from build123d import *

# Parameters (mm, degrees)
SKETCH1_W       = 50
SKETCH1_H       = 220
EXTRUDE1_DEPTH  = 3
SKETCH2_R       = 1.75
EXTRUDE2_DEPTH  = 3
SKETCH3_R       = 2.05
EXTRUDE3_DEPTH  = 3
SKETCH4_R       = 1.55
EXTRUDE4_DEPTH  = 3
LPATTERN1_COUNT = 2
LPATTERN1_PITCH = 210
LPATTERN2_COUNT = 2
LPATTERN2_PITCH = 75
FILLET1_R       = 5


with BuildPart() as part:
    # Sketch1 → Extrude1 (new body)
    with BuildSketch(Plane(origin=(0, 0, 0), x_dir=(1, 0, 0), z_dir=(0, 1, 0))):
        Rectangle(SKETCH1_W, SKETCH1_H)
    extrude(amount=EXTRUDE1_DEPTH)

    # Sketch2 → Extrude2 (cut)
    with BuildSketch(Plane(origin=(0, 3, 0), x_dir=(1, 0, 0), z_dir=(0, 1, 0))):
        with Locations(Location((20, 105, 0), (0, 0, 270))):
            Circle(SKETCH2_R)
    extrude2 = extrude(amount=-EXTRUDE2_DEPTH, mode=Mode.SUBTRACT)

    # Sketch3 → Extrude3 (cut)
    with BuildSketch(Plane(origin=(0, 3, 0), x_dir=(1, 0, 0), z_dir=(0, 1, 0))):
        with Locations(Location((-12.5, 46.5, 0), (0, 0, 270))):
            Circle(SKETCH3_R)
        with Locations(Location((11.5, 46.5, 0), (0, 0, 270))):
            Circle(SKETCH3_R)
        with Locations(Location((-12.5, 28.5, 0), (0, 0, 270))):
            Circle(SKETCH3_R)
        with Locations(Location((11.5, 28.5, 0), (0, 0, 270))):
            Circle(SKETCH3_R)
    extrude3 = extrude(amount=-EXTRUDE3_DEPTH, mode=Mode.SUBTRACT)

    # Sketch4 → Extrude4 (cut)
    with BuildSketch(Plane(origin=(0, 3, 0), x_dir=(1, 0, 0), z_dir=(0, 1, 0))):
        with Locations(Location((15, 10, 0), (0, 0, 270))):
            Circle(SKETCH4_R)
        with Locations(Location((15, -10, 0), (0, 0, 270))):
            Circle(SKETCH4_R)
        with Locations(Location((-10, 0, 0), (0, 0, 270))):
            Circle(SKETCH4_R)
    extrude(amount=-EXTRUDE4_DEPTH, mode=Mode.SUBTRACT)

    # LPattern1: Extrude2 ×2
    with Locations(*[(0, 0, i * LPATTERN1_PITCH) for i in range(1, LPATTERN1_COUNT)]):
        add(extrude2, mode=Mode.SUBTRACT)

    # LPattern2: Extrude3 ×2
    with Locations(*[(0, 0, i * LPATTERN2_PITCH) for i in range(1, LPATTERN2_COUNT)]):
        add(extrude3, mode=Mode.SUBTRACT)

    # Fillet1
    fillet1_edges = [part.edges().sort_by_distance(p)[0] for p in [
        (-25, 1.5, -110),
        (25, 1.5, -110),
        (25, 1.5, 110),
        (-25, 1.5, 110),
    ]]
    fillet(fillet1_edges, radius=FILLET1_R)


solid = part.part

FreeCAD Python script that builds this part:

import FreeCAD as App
import Part
import Sketcher

V = App.Vector
Q = App.Units.Quantity


def edges_at(feature, points):
    """Names of the edges that pass closest to the given points."""
    edges = feature.Shape.Edges
    near = lambda p: min(range(len(edges)), key=lambda i: edges[i].distToShape(Part.Vertex(*p))[0])
    return sorted({f"Edge{near(p) + 1}" for p in points})


def add_polygon(sketch, points):
    """Adds a closed chain of lines whose ends are joined by coincident constraints."""
    first, n = sketch.GeometryCount, len(points)
    for a, b in zip(points, points[1:] + points[:1]):
        sketch.addGeometry(Part.LineSegment(App.Vector(*a, 0), App.Vector(*b, 0)), False)
    for i in range(n):
        sketch.addConstraint(Sketcher.Constraint("Coincident", first + i, 2, first + (i + 1) % n, 1))

doc = App.newDocument("Part")
params = doc.addObject("Spreadsheet::Sheet", "Params")
for row, (alias, value) in enumerate([
    ("sketch1_width", "50 mm"),
    ("sketch1_height", "220 mm"),
    ("pad1_length", "3 mm"),
    ("sketch2_diameter", "3.5 mm"),
    ("pocket1_length", "3 mm"),
    ("sketch3_diameter", "4.1 mm"),
    ("pocket2_length", "3 mm"),
    ("sketch4_diameter", "3.1 mm"),
    ("pocket3_length", "3 mm"),
    ("linearpattern_pitch", "210 mm"),
    ("linearpattern2_pitch", "75 mm"),
    ("fillet_radius", "5 mm"),
], start=1):
    params.set(f"A{row}", alias)
    params.set(f"B{row}", "=" + value)
    params.setAlias(f"B{row}", alias)

body = doc.addObject("PartDesign::Body", "Body")

# Sketch on XZ plane
sketch1 = body.newObject("Sketcher::SketchObject", "Sketch")
sketch1.AttachmentSupport = (doc.getObject("XZ_Plane"), [""])
sketch1.MapMode = "FlatFace"
add_polygon(sketch1, [(-25, -110), (-25, 110), (25, 110), (25, -110)])  # lines 0-3
sketch1.addConstraint(Sketcher.Constraint("Vertical", 0))
sketch1.addConstraint(Sketcher.Constraint("Horizontal", 1))
sketch1.addConstraint(Sketcher.Constraint("Vertical", 2))
sketch1.addConstraint(Sketcher.Constraint("Horizontal", 3))
sketch1.addConstraint(Sketcher.Constraint("Symmetric", 0, 2, 2, 2, -1, 1))
sketch1.addConstraint(Sketcher.Constraint("DistanceX", 1, 1, 1, 2, Q("50 mm")))
sketch1.addConstraint(Sketcher.Constraint("DistanceY", 0, 1, 0, 2, Q("220 mm")))
sketch1.setExpression("Constraints[9]", "Params.sketch1_width")
sketch1.setExpression("Constraints[10]", "Params.sketch1_height")
pad1 = body.newObject("PartDesign::Pad", "Pad")
pad1.Profile = sketch1
pad1.setExpression("Length", "Params.pad1_length")
pad1.Reversed = True

# Sketch on XZ plane
sketch2 = body.newObject("Sketcher::SketchObject", "Sketch001")
sketch2.AttachmentSupport = (doc.getObject("XZ_Plane"), [""])
sketch2.MapMode = "FlatFace"
sketch2.AttachmentOffset = App.Placement(V(0, 0, -3), App.Rotation())
sketch2.addGeometry(Part.Circle(V(20, -105, 0), V(0, 0, 1), 1.8), False)
sketch2.addConstraint(Sketcher.Constraint("Diameter", 0, Q("3.5 mm")))
sketch2.addConstraint(Sketcher.Constraint("DistanceX", -1, 1, 0, 3, Q("20 mm")))
sketch2.addConstraint(Sketcher.Constraint("DistanceY", 0, 3, -1, 1, Q("105 mm")))
sketch2.setExpression("Constraints[0]", "Params.sketch2_diameter")
pocket1 = body.newObject("PartDesign::Pocket", "Pocket")
pocket1.Profile = sketch2
pocket1.setExpression("Length", "Params.pocket1_length")
pocket1.Reversed = True

# Sketch on XZ plane
sketch3 = body.newObject("Sketcher::SketchObject", "Sketch002")
sketch3.AttachmentSupport = (doc.getObject("XZ_Plane"), [""])
sketch3.MapMode = "FlatFace"
sketch3.AttachmentOffset = App.Placement(V(0, 0, -3), App.Rotation())
sketch3.addGeometry(Part.Circle(V(-12.5, -46.5, 0), V(0, 0, 1), 2), False)
sketch3.addGeometry(Part.Circle(V(11.5, -46.5, 0), V(0, 0, 1), 2), False)
sketch3.addGeometry(Part.Circle(V(-12.5, -28.5, 0), V(0, 0, 1), 2), False)
sketch3.addGeometry(Part.Circle(V(11.5, -28.5, 0), V(0, 0, 1), 2), False)
sketch3.addConstraint(Sketcher.Constraint("Equal", 0, 1))
sketch3.addConstraint(Sketcher.Constraint("Equal", 1, 2))
sketch3.addConstraint(Sketcher.Constraint("Equal", 2, 3))
sketch3.addConstraint(Sketcher.Constraint("Horizontal", 0, 3, 1, 3))
sketch3.addConstraint(Sketcher.Constraint("Horizontal", 2, 3, 3, 3))
sketch3.addConstraint(Sketcher.Constraint("Vertical", 0, 3, 2, 3))
sketch3.addConstraint(Sketcher.Constraint("Vertical", 1, 3, 3, 3))
sketch3.addConstraint(Sketcher.Constraint("Diameter", 0, Q("4.1 mm")))
sketch3.addConstraint(Sketcher.Constraint("DistanceX", 0, 3, 1, 3, Q("24 mm")))
sketch3.addConstraint(Sketcher.Constraint("DistanceY", 0, 3, 2, 3, Q("18 mm")))
sketch3.addConstraint(Sketcher.Constraint("DistanceX", 0, 3, -1, 1, Q("12.5 mm")))
sketch3.addConstraint(Sketcher.Constraint("DistanceY", 0, 3, -1, 1, Q("46.5 mm")))
sketch3.setExpression("Constraints[7]", "Params.sketch3_diameter")
pocket2 = body.newObject("PartDesign::Pocket", "Pocket001")
pocket2.Profile = sketch3
pocket2.setExpression("Length", "Params.pocket2_length")
pocket2.Reversed = True

# Sketch on XZ plane
sketch4 = body.newObject("Sketcher::SketchObject", "Sketch003")
sketch4.AttachmentSupport = (doc.getObject("XZ_Plane"), [""])
sketch4.MapMode = "FlatFace"
sketch4.AttachmentOffset = App.Placement(V(0, 0, -3), App.Rotation())
sketch4.addGeometry(Part.Circle(V(15, -10, 0), V(0, 0, 1), 1.6), False)
sketch4.addGeometry(Part.Circle(V(15, 10, 0), V(0, 0, 1), 1.6), False)
sketch4.addGeometry(Part.Circle(V(-10, 0, 0), V(0, 0, 1), 1.6), False)
sketch4.addConstraint(Sketcher.Constraint("Equal", 0, 1))
sketch4.addConstraint(Sketcher.Constraint("Equal", 1, 2))
sketch4.addConstraint(Sketcher.Constraint("Symmetric", 0, 3, 1, 3, -1))
sketch4.addConstraint(Sketcher.Constraint("PointOnObject", 2, 3, -1))
sketch4.addConstraint(Sketcher.Constraint("Diameter", 0, Q("3.1 mm")))
sketch4.addConstraint(Sketcher.Constraint("DistanceX", -1, 1, 0, 3, Q("15 mm")))
sketch4.addConstraint(Sketcher.Constraint("DistanceY", 0, 3, -1, 1, Q("10 mm")))
sketch4.addConstraint(Sketcher.Constraint("DistanceX", 2, 3, -1, 1, Q("10 mm")))
sketch4.setExpression("Constraints[4]", "Params.sketch4_diameter")
pocket3 = body.newObject("PartDesign::Pocket", "Pocket002")
pocket3.Profile = sketch4
pocket3.setExpression("Length", "Params.pocket3_length")
pocket3.Reversed = True
doc.recompute()

linearpattern = body.newObject("PartDesign::LinearPattern", "LinearPattern")
linearpattern.Originals = [pocket1]
linearpattern.Direction = (doc.getObject("Z_Axis"), [""])
linearpattern.Mode = "offset"
linearpattern.setExpression("Offset", "Params.linearpattern_pitch")
linearpattern.Occurrences = 2
body.Tip = linearpattern
doc.recompute()

linearpattern2 = body.newObject("PartDesign::LinearPattern", "LinearPattern001")
linearpattern2.Originals = [pocket2]
linearpattern2.Direction = (doc.getObject("Z_Axis"), [""])
linearpattern2.Mode = "offset"
linearpattern2.setExpression("Offset", "Params.linearpattern2_pitch")
linearpattern2.Occurrences = 2
body.Tip = linearpattern2
doc.recompute()

fillet = body.newObject("PartDesign::Fillet", "Fillet")
fillet.Base = (linearpattern2, edges_at(linearpattern2, [
    (-25, 1.5, -110),
    (25, 1.5, -110),
    (25, 1.5, 110),
    (-25, 1.5, 110),
]))
fillet.setExpression("Radius", "Params.fillet_radius")

doc.recompute()
